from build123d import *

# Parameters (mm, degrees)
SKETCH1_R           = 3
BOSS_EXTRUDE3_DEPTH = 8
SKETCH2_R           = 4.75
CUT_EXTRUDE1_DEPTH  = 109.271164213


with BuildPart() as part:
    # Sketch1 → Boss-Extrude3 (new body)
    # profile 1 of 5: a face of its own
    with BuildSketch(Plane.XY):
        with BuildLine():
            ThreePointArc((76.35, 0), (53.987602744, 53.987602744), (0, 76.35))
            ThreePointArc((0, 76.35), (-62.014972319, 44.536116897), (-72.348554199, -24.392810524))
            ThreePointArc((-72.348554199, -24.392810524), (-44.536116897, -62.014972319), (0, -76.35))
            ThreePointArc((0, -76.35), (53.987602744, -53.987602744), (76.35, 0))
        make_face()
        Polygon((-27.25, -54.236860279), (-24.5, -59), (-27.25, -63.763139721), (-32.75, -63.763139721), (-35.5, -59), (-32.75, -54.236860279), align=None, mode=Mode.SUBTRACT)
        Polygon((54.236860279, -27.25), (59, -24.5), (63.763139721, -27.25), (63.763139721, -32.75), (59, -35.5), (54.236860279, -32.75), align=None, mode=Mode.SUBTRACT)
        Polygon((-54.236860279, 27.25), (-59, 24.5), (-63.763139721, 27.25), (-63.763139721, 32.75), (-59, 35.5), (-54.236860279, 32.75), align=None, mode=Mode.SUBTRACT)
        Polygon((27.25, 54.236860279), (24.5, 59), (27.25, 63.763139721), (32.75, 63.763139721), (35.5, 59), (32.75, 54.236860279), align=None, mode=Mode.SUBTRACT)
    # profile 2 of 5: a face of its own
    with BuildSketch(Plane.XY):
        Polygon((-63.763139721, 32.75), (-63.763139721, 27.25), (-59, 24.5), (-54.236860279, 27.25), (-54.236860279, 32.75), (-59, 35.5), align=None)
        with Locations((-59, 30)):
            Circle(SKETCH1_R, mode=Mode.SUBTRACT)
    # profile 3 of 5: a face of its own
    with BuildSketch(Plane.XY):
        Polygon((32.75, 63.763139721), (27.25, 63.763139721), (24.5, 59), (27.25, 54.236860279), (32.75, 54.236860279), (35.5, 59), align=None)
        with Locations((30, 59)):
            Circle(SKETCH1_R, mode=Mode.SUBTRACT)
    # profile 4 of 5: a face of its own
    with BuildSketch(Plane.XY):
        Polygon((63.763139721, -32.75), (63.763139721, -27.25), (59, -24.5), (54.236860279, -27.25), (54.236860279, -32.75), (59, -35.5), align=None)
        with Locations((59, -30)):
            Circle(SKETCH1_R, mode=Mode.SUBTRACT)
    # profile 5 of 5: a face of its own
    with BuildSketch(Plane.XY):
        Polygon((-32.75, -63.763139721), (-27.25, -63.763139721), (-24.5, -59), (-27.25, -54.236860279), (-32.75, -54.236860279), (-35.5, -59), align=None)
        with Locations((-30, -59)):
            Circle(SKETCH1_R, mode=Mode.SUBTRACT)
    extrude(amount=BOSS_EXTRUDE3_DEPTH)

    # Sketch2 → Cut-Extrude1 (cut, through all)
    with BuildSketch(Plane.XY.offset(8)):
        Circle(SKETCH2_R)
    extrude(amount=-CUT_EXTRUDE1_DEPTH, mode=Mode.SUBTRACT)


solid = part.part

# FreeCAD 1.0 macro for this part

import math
import FreeCAD as App
import Part
import Sketcher

doc = App.newDocument("Part")
params = doc.addObject("Spreadsheet::Sheet", "Params")
for row, (alias, value) in enumerate([
    ("sketch1_diameter", "6 mm"),
    ("sketch1_radius", "76.35 mm"),
    ("pad1_length", "8 mm"),
    ("sketch2_diameter", "9.5 mm"),
], start=1):
    params.set(f"A{row}", alias)
    params.set(f"B{row}", "=" + value)
    params.setAlias(f"B{row}", alias)

body = doc.addObject("PartDesign::Body", "Body")

sketch1 = body.newObject("Sketcher::SketchObject", "Sketch")
sketch1.AttachmentSupport = (doc.getObject("XY_Plane"), [""])
sketch1.MapMode = "FlatFace"
sketch1.addGeometry([
    Part.ArcOfCircle(Part.Circle(App.Vector(0, 0, 0), App.Vector(0, 0, 1), 76.35), math.radians(0), math.radians(90)),
    Part.ArcOfCircle(Part.Circle(App.Vector(0, 0, 0), App.Vector(0, 0, 1), 76.35), math.radians(90), math.radians(198.631886)),
    Part.ArcOfCircle(Part.Circle(App.Vector(0, 0, 0), App.Vector(0, 0, 1), 76.35), math.radians(-161.368114), math.radians(-90)),
    Part.ArcOfCircle(Part.Circle(App.Vector(0, 0, 0), App.Vector(0, 0, 1), 76.35), math.radians(-90), math.radians(0)),
    Part.Circle(App.Vector(-30, -59, 0), App.Vector(0, 0, 1), 3),
    Part.Circle(App.Vector(59, -30, 0), App.Vector(0, 0, 1), 3),
    Part.Circle(App.Vector(-59, 30, 0), App.Vector(0, 0, 1), 3),
    Part.Circle(App.Vector(30, 59, 0), App.Vector(0, 0, 1), 3),
], False)
sketch1.addConstraint([
    Sketcher.Constraint("Tangent", 0, 2, 1, 1),
    Sketcher.Constraint("Tangent", 1, 2, 2, 1),
    Sketcher.Constraint("Tangent", 2, 2, 3, 1),
    Sketcher.Constraint("Tangent", 3, 2, 0, 1),
    Sketcher.Constraint("Coincident", 0, 3, -1, 1),
    Sketcher.Constraint("Equal", 0, 1),
    Sketcher.Constraint("Equal", 4, 5),
    Sketcher.Constraint("Equal", 5, 6),
    Sketcher.Constraint("Equal", 6, 7),
    Sketcher.Constraint("Symmetric", 5, 3, 6, 3, -1, 1),
    Sketcher.Constraint("Symmetric", 4, 3, 7, 3, -1, 1),
    Sketcher.Constraint("PointOnObject", 0, 2, -2),
    Sketcher.Constraint("PointOnObject", 2, 2, -2),
    Sketcher.Constraint("PointOnObject", 3, 2, -1),
    Sketcher.Constraint("Diameter", 4, 6.0),
    Sketcher.Constraint("Radius", 0, 76.35),
    Sketcher.Constraint("DistanceX", 4, 3, -1, 1, 30.0),
    Sketcher.Constraint("DistanceY", 4, 3, -1, 1, 59.0),
    Sketcher.Constraint("DistanceX", -1, 1, 5, 3, 59.0),
    Sketcher.Constraint("DistanceY", 5, 3, -1, 1, 30.0),
    Sketcher.Constraint("DistanceY", 1, 2, -1, 1, 24.392811),
])
sketch1.setExpression("Constraints[14]", "Params.sketch1_diameter")
sketch1.setExpression("Constraints[15]", "Params.sketch1_radius")
pad1 = body.newObject("PartDesign::Pad", "Pad")
pad1.Profile = sketch1
pad1.setExpression("Length", "Params.pad1_length")

sketch2 = body.newObject("Sketcher::SketchObject", "Sketch001")
sketch2.AttachmentSupport = (doc.getObject("XY_Plane"), [""])
sketch2.MapMode = "FlatFace"
sketch2.AttachmentOffset = App.Placement(App.Vector(0, 0, 8), App.Rotation())
sketch2.addGeometry(Part.Circle(App.Vector(0, 0, 0), App.Vector(0, 0, 1), 4.75), False)
sketch2.addConstraint([
    Sketcher.Constraint("Coincident", 0, 3, -1, 1),
    Sketcher.Constraint("Diameter", 0, 9.5),
])
sketch2.setExpression("Constraints[1]", "Params.sketch2_diameter")
pocket1 = body.newObject("PartDesign::Pocket", "Pocket")
pocket1.Profile = sketch2
pocket1.Type = "ThroughAll"

doc.recompute()
